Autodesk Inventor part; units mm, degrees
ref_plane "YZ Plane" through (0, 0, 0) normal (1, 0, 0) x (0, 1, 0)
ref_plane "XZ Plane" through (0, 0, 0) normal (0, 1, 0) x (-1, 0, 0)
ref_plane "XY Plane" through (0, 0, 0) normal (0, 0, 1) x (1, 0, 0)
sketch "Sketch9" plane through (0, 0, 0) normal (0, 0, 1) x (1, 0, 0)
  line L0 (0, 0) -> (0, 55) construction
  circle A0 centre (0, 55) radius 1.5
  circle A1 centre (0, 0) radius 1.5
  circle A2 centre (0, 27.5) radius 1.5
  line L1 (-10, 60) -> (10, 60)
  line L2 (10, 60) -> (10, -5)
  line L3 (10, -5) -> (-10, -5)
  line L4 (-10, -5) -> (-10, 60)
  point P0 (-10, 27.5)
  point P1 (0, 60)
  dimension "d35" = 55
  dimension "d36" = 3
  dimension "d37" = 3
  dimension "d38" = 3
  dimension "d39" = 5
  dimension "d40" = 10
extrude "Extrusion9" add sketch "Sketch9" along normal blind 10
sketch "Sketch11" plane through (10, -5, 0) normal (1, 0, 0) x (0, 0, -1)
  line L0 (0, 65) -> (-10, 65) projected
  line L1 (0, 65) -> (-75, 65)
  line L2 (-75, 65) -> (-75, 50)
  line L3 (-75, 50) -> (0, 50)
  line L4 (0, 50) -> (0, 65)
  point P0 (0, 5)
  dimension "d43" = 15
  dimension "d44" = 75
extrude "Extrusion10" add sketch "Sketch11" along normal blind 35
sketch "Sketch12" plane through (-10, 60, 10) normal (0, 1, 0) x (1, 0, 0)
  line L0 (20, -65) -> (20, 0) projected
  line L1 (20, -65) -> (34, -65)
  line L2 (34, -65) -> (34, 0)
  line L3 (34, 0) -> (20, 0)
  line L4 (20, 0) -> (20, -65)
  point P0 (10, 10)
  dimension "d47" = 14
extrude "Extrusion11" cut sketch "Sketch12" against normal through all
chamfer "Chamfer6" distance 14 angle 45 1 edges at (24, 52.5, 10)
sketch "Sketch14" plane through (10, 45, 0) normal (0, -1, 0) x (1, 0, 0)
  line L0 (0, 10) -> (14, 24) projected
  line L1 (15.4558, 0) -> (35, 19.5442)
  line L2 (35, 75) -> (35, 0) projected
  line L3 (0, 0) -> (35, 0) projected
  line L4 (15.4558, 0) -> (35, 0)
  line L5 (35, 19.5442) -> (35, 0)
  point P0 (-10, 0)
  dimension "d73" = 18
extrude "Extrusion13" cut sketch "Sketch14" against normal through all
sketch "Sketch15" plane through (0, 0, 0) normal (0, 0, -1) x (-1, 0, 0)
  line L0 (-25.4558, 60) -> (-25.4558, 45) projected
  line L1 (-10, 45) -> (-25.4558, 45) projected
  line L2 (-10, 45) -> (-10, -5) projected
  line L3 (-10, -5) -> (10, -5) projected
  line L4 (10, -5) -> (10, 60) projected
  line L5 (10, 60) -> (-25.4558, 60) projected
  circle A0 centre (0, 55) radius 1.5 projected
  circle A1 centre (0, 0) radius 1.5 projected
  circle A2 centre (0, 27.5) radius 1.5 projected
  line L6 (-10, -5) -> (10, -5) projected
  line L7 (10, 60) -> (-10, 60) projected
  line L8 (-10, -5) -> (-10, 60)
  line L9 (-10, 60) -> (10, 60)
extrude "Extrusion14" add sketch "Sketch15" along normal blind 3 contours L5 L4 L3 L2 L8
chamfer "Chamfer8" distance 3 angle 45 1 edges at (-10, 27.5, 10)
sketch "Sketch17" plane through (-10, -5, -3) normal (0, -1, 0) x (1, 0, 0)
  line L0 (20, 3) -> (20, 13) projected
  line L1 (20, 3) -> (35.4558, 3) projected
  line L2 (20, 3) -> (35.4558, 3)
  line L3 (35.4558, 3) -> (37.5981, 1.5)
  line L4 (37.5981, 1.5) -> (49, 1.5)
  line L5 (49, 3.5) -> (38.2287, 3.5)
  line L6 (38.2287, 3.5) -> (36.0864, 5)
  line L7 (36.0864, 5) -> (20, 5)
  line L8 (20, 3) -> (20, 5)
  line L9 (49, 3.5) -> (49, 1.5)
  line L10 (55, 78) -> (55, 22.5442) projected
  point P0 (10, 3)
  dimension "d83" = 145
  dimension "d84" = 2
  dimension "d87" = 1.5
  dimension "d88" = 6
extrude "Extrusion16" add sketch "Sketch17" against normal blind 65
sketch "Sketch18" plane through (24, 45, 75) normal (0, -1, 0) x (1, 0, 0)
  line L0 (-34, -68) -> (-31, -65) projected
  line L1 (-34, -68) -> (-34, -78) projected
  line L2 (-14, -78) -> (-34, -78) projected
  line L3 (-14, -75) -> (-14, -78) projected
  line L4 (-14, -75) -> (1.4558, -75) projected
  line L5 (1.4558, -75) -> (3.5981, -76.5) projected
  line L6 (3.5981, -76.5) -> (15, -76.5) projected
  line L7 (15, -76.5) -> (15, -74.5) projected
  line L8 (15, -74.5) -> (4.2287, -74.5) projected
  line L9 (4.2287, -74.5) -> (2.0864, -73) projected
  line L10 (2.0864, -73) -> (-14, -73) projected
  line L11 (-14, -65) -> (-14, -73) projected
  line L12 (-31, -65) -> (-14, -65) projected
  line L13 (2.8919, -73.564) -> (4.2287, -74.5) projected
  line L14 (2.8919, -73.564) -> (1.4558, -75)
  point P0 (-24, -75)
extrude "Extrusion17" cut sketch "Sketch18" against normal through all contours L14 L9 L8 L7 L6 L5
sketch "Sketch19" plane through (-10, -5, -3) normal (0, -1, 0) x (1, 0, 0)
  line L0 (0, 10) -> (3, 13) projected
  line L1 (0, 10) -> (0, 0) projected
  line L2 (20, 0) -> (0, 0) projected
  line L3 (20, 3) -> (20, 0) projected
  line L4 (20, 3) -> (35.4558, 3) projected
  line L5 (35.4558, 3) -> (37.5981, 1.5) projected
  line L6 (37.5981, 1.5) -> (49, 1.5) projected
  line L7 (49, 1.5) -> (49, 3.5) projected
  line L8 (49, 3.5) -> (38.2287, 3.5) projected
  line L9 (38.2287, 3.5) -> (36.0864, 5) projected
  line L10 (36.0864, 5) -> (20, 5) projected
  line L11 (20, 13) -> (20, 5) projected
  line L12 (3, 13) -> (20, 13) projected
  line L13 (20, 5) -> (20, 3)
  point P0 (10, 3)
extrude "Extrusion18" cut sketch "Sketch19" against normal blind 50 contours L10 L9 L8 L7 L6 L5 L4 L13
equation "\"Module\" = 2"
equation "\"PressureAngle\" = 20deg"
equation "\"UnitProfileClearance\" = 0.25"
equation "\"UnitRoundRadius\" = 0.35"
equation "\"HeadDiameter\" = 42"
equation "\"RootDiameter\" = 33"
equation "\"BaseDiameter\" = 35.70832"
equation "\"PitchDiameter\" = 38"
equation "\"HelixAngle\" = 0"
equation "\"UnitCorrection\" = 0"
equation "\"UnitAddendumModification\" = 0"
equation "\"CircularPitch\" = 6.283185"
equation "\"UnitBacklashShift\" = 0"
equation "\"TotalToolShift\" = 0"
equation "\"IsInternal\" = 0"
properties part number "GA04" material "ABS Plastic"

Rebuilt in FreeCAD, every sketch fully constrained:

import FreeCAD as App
import Part
import Sketcher
Q = App.Units.Quantity


def edges_at(feature, points):
    """Names of the edges that pass closest to the given points."""
    edges = feature.Shape.Edges
    near = lambda p: min(range(len(edges)), key=lambda i: edges[i].distToShape(Part.Vertex(*p))[0])
    return sorted({f"Edge{near(p) + 1}" for p in points})

doc = App.newDocument("Part")
body = doc.addObject("PartDesign::Body", "Body")

# Sketch on XY plane
sketch1 = body.newObject("Sketcher::SketchObject", "Sketch")
sketch1.AttachmentSupport = (doc.getObject("XY_Plane"), [""])
sketch1.MapMode = "FlatFace"
sketch1.addGeometry(Part.LineSegment(App.Vector(10, 60, 0), App.Vector(-10, 60, 0)), False)
sketch1.addGeometry(Part.LineSegment(App.Vector(-10, 60, 0), App.Vector(-10, -5, 0)), False)
sketch1.addGeometry(Part.LineSegment(App.Vector(-10, -5, 0), App.Vector(10, -5, 0)), False)
sketch1.addGeometry(Part.LineSegment(App.Vector(10, -5, 0), App.Vector(10, 60, 0)), False)
sketch1.addGeometry(Part.Circle(App.Vector(0, 0, 0), App.Vector(0, 0, 1), 1.5), False)
sketch1.addGeometry(Part.Circle(App.Vector(0, 27.5, 0), App.Vector(0, 0, 1), 1.5), False)
sketch1.addGeometry(Part.Circle(App.Vector(0, 55, 0), App.Vector(0, 0, 1), 1.5), False)
sketch1.addConstraint(Sketcher.Constraint("Coincident", 0, 2, 1, 1))
sketch1.addConstraint(Sketcher.Constraint("Coincident", 1, 2, 2, 1))
sketch1.addConstraint(Sketcher.Constraint("Coincident", 2, 2, 3, 1))
sketch1.addConstraint(Sketcher.Constraint("Coincident", 3, 2, 0, 1))
sketch1.addConstraint(Sketcher.Constraint("Horizontal", 0))
sketch1.addConstraint(Sketcher.Constraint("Vertical", 1))
sketch1.addConstraint(Sketcher.Constraint("Horizontal", 2))
sketch1.addConstraint(Sketcher.Constraint("Vertical", 3))
sketch1.addConstraint(Sketcher.Constraint("Coincident", 4, 3, -1, 1))
sketch1.addConstraint(Sketcher.Constraint("Equal", 4, 5))
sketch1.addConstraint(Sketcher.Constraint("Equal", 5, 6))
sketch1.addConstraint(Sketcher.Constraint("PointOnObject", 5, 3, -2))
sketch1.addConstraint(Sketcher.Constraint("PointOnObject", 6, 3, -2))
sketch1.addConstraint(Sketcher.Constraint("Diameter", 4, Q("3 mm")))
sketch1.addConstraint(Sketcher.Constraint("DistanceY", -1, 1, 6, 3, Q("55 mm")))
sketch1.addConstraint(Sketcher.Constraint("DistanceX", 0, 2, -1, 1, Q("10 mm")))
sketch1.addConstraint(Sketcher.Constraint("DistanceY", 1, 2, -1, 1, Q("5 mm")))
sketch1.addConstraint(Sketcher.Constraint("DistanceX", -1, 1, 2, 2, Q("10 mm")))
sketch1.addConstraint(Sketcher.Constraint("DistanceY", 6, 3, 0, 2, Q("5 mm")))
sketch1.addConstraint(Sketcher.Constraint("DistanceY", -1, 1, 5, 3, Q("27.5 mm")))
pad1 = body.newObject("PartDesign::Pad", "Pad")
pad1.Profile = sketch1
pad1.Length = 10

# Sketch on YZ plane
sketch2 = body.newObject("Sketcher::SketchObject", "Sketch001")
sketch2.AttachmentSupport = (doc.getObject("YZ_Plane"), [""])
sketch2.MapMode = "FlatFace"
sketch2.AttachmentOffset = App.Placement(App.Vector(0, 0, 10), App.Rotation())
sketch2.addGeometry(Part.LineSegment(App.Vector(45, 0, 0), App.Vector(60, 0, 0)), False)
sketch2.addGeometry(Part.LineSegment(App.Vector(60, 0, 0), App.Vector(60, 75, 0)), False)
sketch2.addGeometry(Part.LineSegment(App.Vector(60, 75, 0), App.Vector(45, 75, 0)), False)
sketch2.addGeometry(Part.LineSegment(App.Vector(45, 75, 0), App.Vector(45, 0, 0)), False)
sketch2.addConstraint(Sketcher.Constraint("Coincident", 0, 2, 1, 1))
sketch2.addConstraint(Sketcher.Constraint("Coincident", 1, 2, 2, 1))
sketch2.addConstraint(Sketcher.Constraint("Coincident", 2, 2, 3, 1))
sketch2.addConstraint(Sketcher.Constraint("Coincident", 3, 2, 0, 1))
sketch2.addConstraint(Sketcher.Constraint("Horizontal", 0))
sketch2.addConstraint(Sketcher.Constraint("Vertical", 1))
sketch2.addConstraint(Sketcher.Constraint("Horizontal", 2))
sketch2.addConstraint(Sketcher.Constraint("Vertical", 3))
sketch2.addConstraint(Sketcher.Constraint("PointOnObject", 0, 2, -1))
sketch2.addConstraint(Sketcher.Constraint("DistanceX", 0, 1, 0, 2, Q("15 mm")))
sketch2.addConstraint(Sketcher.Constraint("DistanceY", 1, 1, 1, 2, Q("75 mm")))
sketch2.addConstraint(Sketcher.Constraint("DistanceX", -1, 1, 0, 2, Q("60 mm")))
pad2 = body.newObject("PartDesign::Pad", "Pad001")
pad2.Profile = sketch2
pad2.Length = 35

# Sketch on XZ plane
sketch3 = body.newObject("Sketcher::SketchObject", "Sketch002")
sketch3.AttachmentSupport = (doc.getObject("XZ_Plane"), [""])
sketch3.MapMode = "FlatFace"
sketch3.AttachmentOffset = App.Placement(App.Vector(0, 0, -60), App.Rotation())
sketch3.addGeometry(Part.LineSegment(App.Vector(10, 10, 0), App.Vector(10, 75, 0)), False)
sketch3.addGeometry(Part.LineSegment(App.Vector(10, 75, 0), App.Vector(24, 75, 0)), False)
sketch3.addGeometry(Part.LineSegment(App.Vector(24, 75, 0), App.Vector(24, 10, 0)), False)
sketch3.addGeometry(Part.LineSegment(App.Vector(24, 10, 0), App.Vector(10, 10, 0)), False)
sketch3.addConstraint(Sketcher.Constraint("Coincident", 0, 2, 1, 1))
sketch3.addConstraint(Sketcher.Constraint("Coincident", 1, 2, 2, 1))
sketch3.addConstraint(Sketcher.Constraint("Coincident", 2, 2, 3, 1))
sketch3.addConstraint(Sketcher.Constraint("Coincident", 3, 2, 0, 1))
sketch3.addConstraint(Sketcher.Constraint("Vertical", 0))
sketch3.addConstraint(Sketcher.Constraint("Horizontal", 1))
sketch3.addConstraint(Sketcher.Constraint("Vertical", 2))
sketch3.addConstraint(Sketcher.Constraint("Horizontal", 3))
sketch3.addConstraint(Sketcher.Constraint("DistanceX", 1, 1, 1, 2, Q("14 mm")))
sketch3.addConstraint(Sketcher.Constraint("DistanceY", 0, 1, 0, 2, Q("65 mm")))
sketch3.addConstraint(Sketcher.Constraint("DistanceX", -1, 1, 0, 2, Q("10 mm")))
sketch3.addConstraint(Sketcher.Constraint("DistanceY", -1, 1, 0, 2, Q("75 mm")))
pocket1 = body.newObject("PartDesign::Pocket", "Pocket")
pocket1.Profile = sketch3
pocket1.Type = "ThroughAll"
pocket1.Reversed = True
doc.recompute()

chamfer = body.newObject("PartDesign::Chamfer", "Chamfer")
chamfer.Base = (pocket1, edges_at(pocket1, [(24, 52.5, 10)]))
chamfer.Size = 14

# Sketch on XZ plane
sketch4 = body.newObject("Sketcher::SketchObject", "Sketch003")
sketch4.AttachmentSupport = (doc.getObject("XZ_Plane"), [""])
sketch4.MapMode = "FlatFace"
sketch4.AttachmentOffset = App.Placement(App.Vector(0, 0, -45), App.Rotation())
sketch4.addGeometry(Part.LineSegment(App.Vector(45, 20, 0), App.Vector(25, 0, 0)), False)
sketch4.addGeometry(Part.LineSegment(App.Vector(25, 0, 0), App.Vector(45, 0, 0)), False)
sketch4.addGeometry(Part.LineSegment(App.Vector(45, 0, 0), App.Vector(45, 20, 0)), False)
sketch4.addConstraint(Sketcher.Constraint("Coincident", 0, 2, 1, 1))
sketch4.addConstraint(Sketcher.Constraint("Coincident", 1, 2, 2, 1))
sketch4.addConstraint(Sketcher.Constraint("Coincident", 2, 2, 0, 1))
sketch4.addConstraint(Sketcher.Constraint("Horizontal", 1))
sketch4.addConstraint(Sketcher.Constraint("Vertical", 2))
sketch4.addConstraint(Sketcher.Constraint("PointOnObject", 0, 2, -1))
sketch4.addConstraint(Sketcher.Constraint("Equal", 1, 2))
sketch4.addConstraint(Sketcher.Constraint("DistanceX", -1, 1, 1, 2, Q("45 mm")))
sketch4.addConstraint(Sketcher.Constraint("DistanceX", 1, 1, 1, 2, Q("19.5442 mm")))
pocket2 = body.newObject("PartDesign::Pocket", "Pocket001")
pocket2.Profile = sketch4
pocket2.Type = "ThroughAll"

# Sketch on XY plane
sketch5 = body.newObject("Sketcher::SketchObject", "Sketch004")
sketch5.AttachmentSupport = (doc.getObject("XY_Plane"), [""])
sketch5.MapMode = "FlatFace"
sketch5.addGeometry(Part.LineSegment(App.Vector(-10, 60, 0), App.Vector(10, 60, 0)), False)
sketch5.addGeometry(Part.LineSegment(App.Vector(10, 60, 0), App.Vector(10, -5, 0)), False)
sketch5.addGeometry(Part.LineSegment(App.Vector(10, -5, 0), App.Vector(-10, -5, 0)), False)
sketch5.addGeometry(Part.LineSegment(App.Vector(-10, -5, 0), App.Vector(-10, 60, 0)), False)
sketch5.addGeometry(Part.Circle(App.Vector(0, 0, 0), App.Vector(0, 0, 1), 1.5), False)
sketch5.addGeometry(Part.Circle(App.Vector(0, 27.5, 0), App.Vector(0, 0, 1), 1.5), False)
sketch5.addGeometry(Part.Circle(App.Vector(0, 55, 0), App.Vector(0, 0, 1), 1.5), False)
sketch5.addConstraint(Sketcher.Constraint("Coincident", 0, 2, 1, 1))
sketch5.addConstraint(Sketcher.Constraint("Coincident", 1, 2, 2, 1))
sketch5.addConstraint(Sketcher.Constraint("Coincident", 2, 2, 3, 1))
sketch5.addConstraint(Sketcher.Constraint("Coincident", 3, 2, 0, 1))
sketch5.addConstraint(Sketcher.Constraint("Horizontal", 0))
sketch5.addConstraint(Sketcher.Constraint("Vertical", 1))
sketch5.addConstraint(Sketcher.Constraint("Horizontal", 2))
sketch5.addConstraint(Sketcher.Constraint("Vertical", 3))
sketch5.addConstraint(Sketcher.Constraint("Coincident", 4, 3, -1, 1))
sketch5.addConstraint(Sketcher.Constraint("Equal", 4, 5))
sketch5.addConstraint(Sketcher.Constraint("Equal", 5, 6))
sketch5.addConstraint(Sketcher.Constraint("PointOnObject", 5, 3, -2))
sketch5.addConstraint(Sketcher.Constraint("PointOnObject", 6, 3, -2))
sketch5.addConstraint(Sketcher.Constraint("Diameter", 4, Q("3 mm")))
sketch5.addConstraint(Sketcher.Constraint("DistanceX", 0, 1, 0, 2, Q("20 mm")))
sketch5.addConstraint(Sketcher.Constraint("DistanceY", 1, 2, 1, 1, Q("65 mm")))
sketch5.addConstraint(Sketcher.Constraint("DistanceY", -1, 1, 6, 3, Q("55 mm")))
sketch5.addConstraint(Sketcher.Constraint("DistanceX", -1, 1, 0, 2, Q("10 mm")))
sketch5.addConstraint(Sketcher.Constraint("DistanceY", -1, 1, 0, 2, Q("60 mm")))
sketch5.addConstraint(Sketcher.Constraint("DistanceY", -1, 1, 5, 3, Q("27.5 mm")))
pad3 = body.newObject("PartDesign::Pad", "Pad002")
pad3.Profile = sketch5
pad3.Length = 3
pad3.Reversed = True
doc.recompute()

chamfer2 = body.newObject("PartDesign::Chamfer", "Chamfer001")
chamfer2.Base = (pad3, edges_at(pad3, [(-10, 27.5, 10)]))
chamfer2.Size = 3

# Sketch on XZ plane
sketch6 = body.newObject("Sketcher::SketchObject", "Sketch005")
sketch6.AttachmentSupport = (doc.getObject("XZ_Plane"), [""])
sketch6.MapMode = "FlatFace"
sketch6.AttachmentOffset = App.Placement(App.Vector(0, 0, 5), App.Rotation())
sketch6.addGeometry(Part.LineSegment(App.Vector(10, 2, 0), App.Vector(10, 0, 0)), False)
sketch6.addGeometry(Part.LineSegment(App.Vector(10, 0, 0), App.Vector(25.5, 0, 0)), False)
sketch6.addGeometry(Part.LineSegment(App.Vector(25.5, 0, 0), App.Vector(27.6, -1.5, 0)), False)
sketch6.addGeometry(Part.LineSegment(App.Vector(27.6, -1.5, 0), App.Vector(39, -1.5, 0)), False)
sketch6.addGeometry(Part.LineSegment(App.Vector(39, -1.5, 0), App.Vector(39, 0.5, 0)), False)
sketch6.addGeometry(Part.LineSegment(App.Vector(39, 0.5, 0), App.Vector(28.2, 0.5, 0)), False)
sketch6.addGeometry(Part.LineSegment(App.Vector(28.2, 0.5, 0), App.Vector(26.1, 2, 0)), False)
sketch6.addGeometry(Part.LineSegment(App.Vector(26.1, 2, 0), App.Vector(10, 2, 0)), False)
sketch6.addConstraint(Sketcher.Constraint("Coincident", 0, 2, 1, 1))
sketch6.addConstraint(Sketcher.Constraint("Coincident", 1, 2, 2, 1))
sketch6.addConstraint(Sketcher.Constraint("Coincident", 2, 2, 3, 1))
sketch6.addConstraint(Sketcher.Constraint("Coincident", 3, 2, 4, 1))
sketch6.addConstraint(Sketcher.Constraint("Coincident", 4, 2, 5, 1))
sketch6.addConstraint(Sketcher.Constraint("Coincident", 5, 2, 6, 1))
sketch6.addConstraint(Sketcher.Constraint("Coincident", 6, 2, 7, 1))
sketch6.addConstraint(Sketcher.Constraint("Coincident", 7, 2, 0, 1))
sketch6.addConstraint(Sketcher.Constraint("Vertical", 0))
sketch6.addConstraint(Sketcher.Constraint("Horizontal", 1))
sketch6.addConstraint(Sketcher.Constraint("Horizontal", 3))
sketch6.addConstraint(Sketcher.Constraint("Vertical", 4))
sketch6.addConstraint(Sketcher.Constraint("Horizontal", 5))
sketch6.addConstraint(Sketcher.Constraint("Horizontal", 7))
sketch6.addConstraint(Sketcher.Constraint("PointOnObject", 0, 2, -1))
sketch6.addConstraint(Sketcher.Constraint("Parallel", 2, 6))
sketch6.addConstraint(Sketcher.Constraint("Equal", 0, 4))
sketch6.addConstraint(Sketcher.Constraint("DistanceY", 0, 2, 0, 1, Q("2 mm")))
sketch6.addConstraint(Sketcher.Constraint("DistanceY", 2, 2, -1, 1, Q("1.5 mm")))
sketch6.addConstraint(Sketcher.Constraint("Angle", 2, Q("-34.999 deg")))
sketch6.addConstraint(Sketcher.Constraint("DistanceX", -1, 1, 0, 2, Q("10 mm")))
sketch6.addConstraint(Sketcher.Constraint("DistanceX", -1, 1, 3, 2, Q("39 mm")))
sketch6.addConstraint(Sketcher.Constraint("DistanceX", 3, 1, 3, 2, Q("11.402 mm")))
sketch6.addConstraint(Sketcher.Constraint("DistanceX", 5, 2, 5, 1, Q("10.7713 mm")))
pad4 = body.newObject("PartDesign::Pad", "Pad003")
pad4.Profile = sketch6
pad4.Length = 65
pad4.Reversed = True

# Sketch on XZ plane
sketch7 = body.newObject("Sketcher::SketchObject", "Sketch006")
sketch7.AttachmentSupport = (doc.getObject("XZ_Plane"), [""])
sketch7.MapMode = "FlatFace"
sketch7.AttachmentOffset = App.Placement(App.Vector(0, 0, -45), App.Rotation())
sketch7.addGeometry(Part.LineSegment(App.Vector(26.9, 1.4, 0), App.Vector(25.5, 0, 0)), False)
sketch7.addGeometry(Part.LineSegment(App.Vector(25.5, 0, 0), App.Vector(27.6, -1.5, 0)), False)
sketch7.addGeometry(Part.LineSegment(App.Vector(27.6, -1.5, 0), App.Vector(39, -1.5, 0)), False)
sketch7.addGeometry(Part.LineSegment(App.Vector(39, -1.5, 0), App.Vector(39, 0.5, 0)), False)
sketch7.addGeometry(Part.LineSegment(App.Vector(39, 0.5, 0), App.Vector(28.2, 0.5, 0)), False)
sketch7.addGeometry(Part.LineSegment(App.Vector(28.2, 0.5, 0), App.Vector(26.9, 1.4, 0)), False)
sketch7.addConstraint(Sketcher.Constraint("Coincident", 0, 2, 1, 1))
sketch7.addConstraint(Sketcher.Constraint("Coincident", 1, 2, 2, 1))
sketch7.addConstraint(Sketcher.Constraint("Coincident", 2, 2, 3, 1))
sketch7.addConstraint(Sketcher.Constraint("Coincident", 3, 2, 4, 1))
sketch7.addConstraint(Sketcher.Constraint("Coincident", 4, 2, 5, 1))
sketch7.addConstraint(Sketcher.Constraint("Coincident", 5, 2, 0, 1))
sketch7.addConstraint(Sketcher.Constraint("Horizontal", 2))
sketch7.addConstraint(Sketcher.Constraint("Vertical", 3))
sketch7.addConstraint(Sketcher.Constraint("Horizontal", 4))
sketch7.addConstraint(Sketcher.Constraint("PointOnObject", 0, 2, -1))
sketch7.addConstraint(Sketcher.Constraint("Parallel", 1, 5))
sketch7.addConstraint(Sketcher.Constraint("DistanceY", 3, 1, 3, 2, Q("2 mm")))
sketch7.addConstraint(Sketcher.Constraint("Angle", 1, Q("-34.999 deg")))
sketch7.addConstraint(Sketcher.Constraint("DistanceX", -1, 1, 2, 2, Q("39 mm")))
sketch7.addConstraint(Sketcher.Constraint("DistanceY", 1, 2, -1, 1, Q("1.5 mm")))
sketch7.addConstraint(Sketcher.Constraint("DistanceX", 2, 1, 2, 2, Q("11.402 mm")))
sketch7.addConstraint(Sketcher.Constraint("Distance", 0, Q("2.031 mm")))
sketch7.addConstraint(Sketcher.Constraint("Distance", 5, Q("1.632 mm")))
pocket3 = body.newObject("PartDesign::Pocket", "Pocket002")
pocket3.Profile = sketch7
pocket3.Type = "ThroughAll"

# Sketch on XZ plane
sketch8 = body.newObject("Sketcher::SketchObject", "Sketch007")
sketch8.AttachmentSupport = (doc.getObject("XZ_Plane"), [""])
sketch8.MapMode = "FlatFace"
sketch8.AttachmentOffset = App.Placement(App.Vector(0, 0, 5), App.Rotation())
sketch8.addGeometry(Part.LineSegment(App.Vector(26.1, 2, 0), App.Vector(10, 2, 0)), False)
sketch8.addGeometry(Part.LineSegment(App.Vector(10, 2, 0), App.Vector(10, 0, 0)), False)
sketch8.addGeometry(Part.LineSegment(App.Vector(10, 0, 0), App.Vector(25.5, 0, 0)), False)
sketch8.addGeometry(Part.LineSegment(App.Vector(25.5, 0, 0), App.Vector(27.6, -1.5, 0)), False)
sketch8.addGeometry(Part.LineSegment(App.Vector(27.6, -1.5, 0), App.Vector(39, -1.5, 0)), False)
sketch8.addGeometry(Part.LineSegment(App.Vector(39, -1.5, 0), App.Vector(39, 0.5, 0)), False)
sketch8.addGeometry(Part.LineSegment(App.Vector(39, 0.5, 0), App.Vector(28.2, 0.5, 0)), False)
sketch8.addGeometry(Part.LineSegment(App.Vector(28.2, 0.5, 0), App.Vector(26.1, 2, 0)), False)
sketch8.addConstraint(Sketcher.Constraint("Coincident", 0, 2, 1, 1))
sketch8.addConstraint(Sketcher.Constraint("Coincident", 1, 2, 2, 1))
sketch8.addConstraint(Sketcher.Constraint("Coincident", 2, 2, 3, 1))
sketch8.addConstraint(Sketcher.Constraint("Coincident", 3, 2, 4, 1))
sketch8.addConstraint(Sketcher.Constraint("Coincident", 4, 2, 5, 1))
sketch8.addConstraint(Sketcher.Constraint("Coincident", 5, 2, 6, 1))
sketch8.addConstraint(Sketcher.Constraint("Coincident", 6, 2, 7, 1))
sketch8.addConstraint(Sketcher.Constraint("Coincident", 7, 2, 0, 1))
sketch8.addConstraint(Sketcher.Constraint("Horizontal", 0))
sketch8.addConstraint(Sketcher.Constraint("Vertical", 1))
sketch8.addConstraint(Sketcher.Constraint("Horizontal", 2))
sketch8.addConstraint(Sketcher.Constraint("Horizontal", 4))
sketch8.addConstraint(Sketcher.Constraint("Vertical", 5))
sketch8.addConstraint(Sketcher.Constraint("Horizontal", 6))
sketch8.addConstraint(Sketcher.Constraint("PointOnObject", 1, 2, -1))
sketch8.addConstraint(Sketcher.Constraint("Parallel", 3, 7))
sketch8.addConstraint(Sketcher.Constraint("Equal", 1, 5))
sketch8.addConstraint(Sketcher.Constraint("DistanceY", 1, 2, 1, 1, Q("2 mm")))
sketch8.addConstraint(Sketcher.Constraint("Angle", 3, Q("-34.999 deg")))
sketch8.addConstraint(Sketcher.Constraint("DistanceX", -1, 1, 0, 2, Q("10 mm")))
sketch8.addConstraint(Sketcher.Constraint("DistanceX", -1, 1, 4, 2, Q("39 mm")))
sketch8.addConstraint(Sketcher.Constraint("DistanceY", 3, 2, -1, 1, Q("1.5 mm")))
sketch8.addConstraint(Sketcher.Constraint("DistanceX", 4, 1, 4, 2, Q("11.402 mm")))
sketch8.addConstraint(Sketcher.Constraint("DistanceX", 0, 2, 0, 1, Q("16.0864 mm")))
pocket4 = body.newObject("PartDesign::Pocket", "Pocket003")
pocket4.Profile = sketch8
pocket4.Length = 50

doc.recompute()
